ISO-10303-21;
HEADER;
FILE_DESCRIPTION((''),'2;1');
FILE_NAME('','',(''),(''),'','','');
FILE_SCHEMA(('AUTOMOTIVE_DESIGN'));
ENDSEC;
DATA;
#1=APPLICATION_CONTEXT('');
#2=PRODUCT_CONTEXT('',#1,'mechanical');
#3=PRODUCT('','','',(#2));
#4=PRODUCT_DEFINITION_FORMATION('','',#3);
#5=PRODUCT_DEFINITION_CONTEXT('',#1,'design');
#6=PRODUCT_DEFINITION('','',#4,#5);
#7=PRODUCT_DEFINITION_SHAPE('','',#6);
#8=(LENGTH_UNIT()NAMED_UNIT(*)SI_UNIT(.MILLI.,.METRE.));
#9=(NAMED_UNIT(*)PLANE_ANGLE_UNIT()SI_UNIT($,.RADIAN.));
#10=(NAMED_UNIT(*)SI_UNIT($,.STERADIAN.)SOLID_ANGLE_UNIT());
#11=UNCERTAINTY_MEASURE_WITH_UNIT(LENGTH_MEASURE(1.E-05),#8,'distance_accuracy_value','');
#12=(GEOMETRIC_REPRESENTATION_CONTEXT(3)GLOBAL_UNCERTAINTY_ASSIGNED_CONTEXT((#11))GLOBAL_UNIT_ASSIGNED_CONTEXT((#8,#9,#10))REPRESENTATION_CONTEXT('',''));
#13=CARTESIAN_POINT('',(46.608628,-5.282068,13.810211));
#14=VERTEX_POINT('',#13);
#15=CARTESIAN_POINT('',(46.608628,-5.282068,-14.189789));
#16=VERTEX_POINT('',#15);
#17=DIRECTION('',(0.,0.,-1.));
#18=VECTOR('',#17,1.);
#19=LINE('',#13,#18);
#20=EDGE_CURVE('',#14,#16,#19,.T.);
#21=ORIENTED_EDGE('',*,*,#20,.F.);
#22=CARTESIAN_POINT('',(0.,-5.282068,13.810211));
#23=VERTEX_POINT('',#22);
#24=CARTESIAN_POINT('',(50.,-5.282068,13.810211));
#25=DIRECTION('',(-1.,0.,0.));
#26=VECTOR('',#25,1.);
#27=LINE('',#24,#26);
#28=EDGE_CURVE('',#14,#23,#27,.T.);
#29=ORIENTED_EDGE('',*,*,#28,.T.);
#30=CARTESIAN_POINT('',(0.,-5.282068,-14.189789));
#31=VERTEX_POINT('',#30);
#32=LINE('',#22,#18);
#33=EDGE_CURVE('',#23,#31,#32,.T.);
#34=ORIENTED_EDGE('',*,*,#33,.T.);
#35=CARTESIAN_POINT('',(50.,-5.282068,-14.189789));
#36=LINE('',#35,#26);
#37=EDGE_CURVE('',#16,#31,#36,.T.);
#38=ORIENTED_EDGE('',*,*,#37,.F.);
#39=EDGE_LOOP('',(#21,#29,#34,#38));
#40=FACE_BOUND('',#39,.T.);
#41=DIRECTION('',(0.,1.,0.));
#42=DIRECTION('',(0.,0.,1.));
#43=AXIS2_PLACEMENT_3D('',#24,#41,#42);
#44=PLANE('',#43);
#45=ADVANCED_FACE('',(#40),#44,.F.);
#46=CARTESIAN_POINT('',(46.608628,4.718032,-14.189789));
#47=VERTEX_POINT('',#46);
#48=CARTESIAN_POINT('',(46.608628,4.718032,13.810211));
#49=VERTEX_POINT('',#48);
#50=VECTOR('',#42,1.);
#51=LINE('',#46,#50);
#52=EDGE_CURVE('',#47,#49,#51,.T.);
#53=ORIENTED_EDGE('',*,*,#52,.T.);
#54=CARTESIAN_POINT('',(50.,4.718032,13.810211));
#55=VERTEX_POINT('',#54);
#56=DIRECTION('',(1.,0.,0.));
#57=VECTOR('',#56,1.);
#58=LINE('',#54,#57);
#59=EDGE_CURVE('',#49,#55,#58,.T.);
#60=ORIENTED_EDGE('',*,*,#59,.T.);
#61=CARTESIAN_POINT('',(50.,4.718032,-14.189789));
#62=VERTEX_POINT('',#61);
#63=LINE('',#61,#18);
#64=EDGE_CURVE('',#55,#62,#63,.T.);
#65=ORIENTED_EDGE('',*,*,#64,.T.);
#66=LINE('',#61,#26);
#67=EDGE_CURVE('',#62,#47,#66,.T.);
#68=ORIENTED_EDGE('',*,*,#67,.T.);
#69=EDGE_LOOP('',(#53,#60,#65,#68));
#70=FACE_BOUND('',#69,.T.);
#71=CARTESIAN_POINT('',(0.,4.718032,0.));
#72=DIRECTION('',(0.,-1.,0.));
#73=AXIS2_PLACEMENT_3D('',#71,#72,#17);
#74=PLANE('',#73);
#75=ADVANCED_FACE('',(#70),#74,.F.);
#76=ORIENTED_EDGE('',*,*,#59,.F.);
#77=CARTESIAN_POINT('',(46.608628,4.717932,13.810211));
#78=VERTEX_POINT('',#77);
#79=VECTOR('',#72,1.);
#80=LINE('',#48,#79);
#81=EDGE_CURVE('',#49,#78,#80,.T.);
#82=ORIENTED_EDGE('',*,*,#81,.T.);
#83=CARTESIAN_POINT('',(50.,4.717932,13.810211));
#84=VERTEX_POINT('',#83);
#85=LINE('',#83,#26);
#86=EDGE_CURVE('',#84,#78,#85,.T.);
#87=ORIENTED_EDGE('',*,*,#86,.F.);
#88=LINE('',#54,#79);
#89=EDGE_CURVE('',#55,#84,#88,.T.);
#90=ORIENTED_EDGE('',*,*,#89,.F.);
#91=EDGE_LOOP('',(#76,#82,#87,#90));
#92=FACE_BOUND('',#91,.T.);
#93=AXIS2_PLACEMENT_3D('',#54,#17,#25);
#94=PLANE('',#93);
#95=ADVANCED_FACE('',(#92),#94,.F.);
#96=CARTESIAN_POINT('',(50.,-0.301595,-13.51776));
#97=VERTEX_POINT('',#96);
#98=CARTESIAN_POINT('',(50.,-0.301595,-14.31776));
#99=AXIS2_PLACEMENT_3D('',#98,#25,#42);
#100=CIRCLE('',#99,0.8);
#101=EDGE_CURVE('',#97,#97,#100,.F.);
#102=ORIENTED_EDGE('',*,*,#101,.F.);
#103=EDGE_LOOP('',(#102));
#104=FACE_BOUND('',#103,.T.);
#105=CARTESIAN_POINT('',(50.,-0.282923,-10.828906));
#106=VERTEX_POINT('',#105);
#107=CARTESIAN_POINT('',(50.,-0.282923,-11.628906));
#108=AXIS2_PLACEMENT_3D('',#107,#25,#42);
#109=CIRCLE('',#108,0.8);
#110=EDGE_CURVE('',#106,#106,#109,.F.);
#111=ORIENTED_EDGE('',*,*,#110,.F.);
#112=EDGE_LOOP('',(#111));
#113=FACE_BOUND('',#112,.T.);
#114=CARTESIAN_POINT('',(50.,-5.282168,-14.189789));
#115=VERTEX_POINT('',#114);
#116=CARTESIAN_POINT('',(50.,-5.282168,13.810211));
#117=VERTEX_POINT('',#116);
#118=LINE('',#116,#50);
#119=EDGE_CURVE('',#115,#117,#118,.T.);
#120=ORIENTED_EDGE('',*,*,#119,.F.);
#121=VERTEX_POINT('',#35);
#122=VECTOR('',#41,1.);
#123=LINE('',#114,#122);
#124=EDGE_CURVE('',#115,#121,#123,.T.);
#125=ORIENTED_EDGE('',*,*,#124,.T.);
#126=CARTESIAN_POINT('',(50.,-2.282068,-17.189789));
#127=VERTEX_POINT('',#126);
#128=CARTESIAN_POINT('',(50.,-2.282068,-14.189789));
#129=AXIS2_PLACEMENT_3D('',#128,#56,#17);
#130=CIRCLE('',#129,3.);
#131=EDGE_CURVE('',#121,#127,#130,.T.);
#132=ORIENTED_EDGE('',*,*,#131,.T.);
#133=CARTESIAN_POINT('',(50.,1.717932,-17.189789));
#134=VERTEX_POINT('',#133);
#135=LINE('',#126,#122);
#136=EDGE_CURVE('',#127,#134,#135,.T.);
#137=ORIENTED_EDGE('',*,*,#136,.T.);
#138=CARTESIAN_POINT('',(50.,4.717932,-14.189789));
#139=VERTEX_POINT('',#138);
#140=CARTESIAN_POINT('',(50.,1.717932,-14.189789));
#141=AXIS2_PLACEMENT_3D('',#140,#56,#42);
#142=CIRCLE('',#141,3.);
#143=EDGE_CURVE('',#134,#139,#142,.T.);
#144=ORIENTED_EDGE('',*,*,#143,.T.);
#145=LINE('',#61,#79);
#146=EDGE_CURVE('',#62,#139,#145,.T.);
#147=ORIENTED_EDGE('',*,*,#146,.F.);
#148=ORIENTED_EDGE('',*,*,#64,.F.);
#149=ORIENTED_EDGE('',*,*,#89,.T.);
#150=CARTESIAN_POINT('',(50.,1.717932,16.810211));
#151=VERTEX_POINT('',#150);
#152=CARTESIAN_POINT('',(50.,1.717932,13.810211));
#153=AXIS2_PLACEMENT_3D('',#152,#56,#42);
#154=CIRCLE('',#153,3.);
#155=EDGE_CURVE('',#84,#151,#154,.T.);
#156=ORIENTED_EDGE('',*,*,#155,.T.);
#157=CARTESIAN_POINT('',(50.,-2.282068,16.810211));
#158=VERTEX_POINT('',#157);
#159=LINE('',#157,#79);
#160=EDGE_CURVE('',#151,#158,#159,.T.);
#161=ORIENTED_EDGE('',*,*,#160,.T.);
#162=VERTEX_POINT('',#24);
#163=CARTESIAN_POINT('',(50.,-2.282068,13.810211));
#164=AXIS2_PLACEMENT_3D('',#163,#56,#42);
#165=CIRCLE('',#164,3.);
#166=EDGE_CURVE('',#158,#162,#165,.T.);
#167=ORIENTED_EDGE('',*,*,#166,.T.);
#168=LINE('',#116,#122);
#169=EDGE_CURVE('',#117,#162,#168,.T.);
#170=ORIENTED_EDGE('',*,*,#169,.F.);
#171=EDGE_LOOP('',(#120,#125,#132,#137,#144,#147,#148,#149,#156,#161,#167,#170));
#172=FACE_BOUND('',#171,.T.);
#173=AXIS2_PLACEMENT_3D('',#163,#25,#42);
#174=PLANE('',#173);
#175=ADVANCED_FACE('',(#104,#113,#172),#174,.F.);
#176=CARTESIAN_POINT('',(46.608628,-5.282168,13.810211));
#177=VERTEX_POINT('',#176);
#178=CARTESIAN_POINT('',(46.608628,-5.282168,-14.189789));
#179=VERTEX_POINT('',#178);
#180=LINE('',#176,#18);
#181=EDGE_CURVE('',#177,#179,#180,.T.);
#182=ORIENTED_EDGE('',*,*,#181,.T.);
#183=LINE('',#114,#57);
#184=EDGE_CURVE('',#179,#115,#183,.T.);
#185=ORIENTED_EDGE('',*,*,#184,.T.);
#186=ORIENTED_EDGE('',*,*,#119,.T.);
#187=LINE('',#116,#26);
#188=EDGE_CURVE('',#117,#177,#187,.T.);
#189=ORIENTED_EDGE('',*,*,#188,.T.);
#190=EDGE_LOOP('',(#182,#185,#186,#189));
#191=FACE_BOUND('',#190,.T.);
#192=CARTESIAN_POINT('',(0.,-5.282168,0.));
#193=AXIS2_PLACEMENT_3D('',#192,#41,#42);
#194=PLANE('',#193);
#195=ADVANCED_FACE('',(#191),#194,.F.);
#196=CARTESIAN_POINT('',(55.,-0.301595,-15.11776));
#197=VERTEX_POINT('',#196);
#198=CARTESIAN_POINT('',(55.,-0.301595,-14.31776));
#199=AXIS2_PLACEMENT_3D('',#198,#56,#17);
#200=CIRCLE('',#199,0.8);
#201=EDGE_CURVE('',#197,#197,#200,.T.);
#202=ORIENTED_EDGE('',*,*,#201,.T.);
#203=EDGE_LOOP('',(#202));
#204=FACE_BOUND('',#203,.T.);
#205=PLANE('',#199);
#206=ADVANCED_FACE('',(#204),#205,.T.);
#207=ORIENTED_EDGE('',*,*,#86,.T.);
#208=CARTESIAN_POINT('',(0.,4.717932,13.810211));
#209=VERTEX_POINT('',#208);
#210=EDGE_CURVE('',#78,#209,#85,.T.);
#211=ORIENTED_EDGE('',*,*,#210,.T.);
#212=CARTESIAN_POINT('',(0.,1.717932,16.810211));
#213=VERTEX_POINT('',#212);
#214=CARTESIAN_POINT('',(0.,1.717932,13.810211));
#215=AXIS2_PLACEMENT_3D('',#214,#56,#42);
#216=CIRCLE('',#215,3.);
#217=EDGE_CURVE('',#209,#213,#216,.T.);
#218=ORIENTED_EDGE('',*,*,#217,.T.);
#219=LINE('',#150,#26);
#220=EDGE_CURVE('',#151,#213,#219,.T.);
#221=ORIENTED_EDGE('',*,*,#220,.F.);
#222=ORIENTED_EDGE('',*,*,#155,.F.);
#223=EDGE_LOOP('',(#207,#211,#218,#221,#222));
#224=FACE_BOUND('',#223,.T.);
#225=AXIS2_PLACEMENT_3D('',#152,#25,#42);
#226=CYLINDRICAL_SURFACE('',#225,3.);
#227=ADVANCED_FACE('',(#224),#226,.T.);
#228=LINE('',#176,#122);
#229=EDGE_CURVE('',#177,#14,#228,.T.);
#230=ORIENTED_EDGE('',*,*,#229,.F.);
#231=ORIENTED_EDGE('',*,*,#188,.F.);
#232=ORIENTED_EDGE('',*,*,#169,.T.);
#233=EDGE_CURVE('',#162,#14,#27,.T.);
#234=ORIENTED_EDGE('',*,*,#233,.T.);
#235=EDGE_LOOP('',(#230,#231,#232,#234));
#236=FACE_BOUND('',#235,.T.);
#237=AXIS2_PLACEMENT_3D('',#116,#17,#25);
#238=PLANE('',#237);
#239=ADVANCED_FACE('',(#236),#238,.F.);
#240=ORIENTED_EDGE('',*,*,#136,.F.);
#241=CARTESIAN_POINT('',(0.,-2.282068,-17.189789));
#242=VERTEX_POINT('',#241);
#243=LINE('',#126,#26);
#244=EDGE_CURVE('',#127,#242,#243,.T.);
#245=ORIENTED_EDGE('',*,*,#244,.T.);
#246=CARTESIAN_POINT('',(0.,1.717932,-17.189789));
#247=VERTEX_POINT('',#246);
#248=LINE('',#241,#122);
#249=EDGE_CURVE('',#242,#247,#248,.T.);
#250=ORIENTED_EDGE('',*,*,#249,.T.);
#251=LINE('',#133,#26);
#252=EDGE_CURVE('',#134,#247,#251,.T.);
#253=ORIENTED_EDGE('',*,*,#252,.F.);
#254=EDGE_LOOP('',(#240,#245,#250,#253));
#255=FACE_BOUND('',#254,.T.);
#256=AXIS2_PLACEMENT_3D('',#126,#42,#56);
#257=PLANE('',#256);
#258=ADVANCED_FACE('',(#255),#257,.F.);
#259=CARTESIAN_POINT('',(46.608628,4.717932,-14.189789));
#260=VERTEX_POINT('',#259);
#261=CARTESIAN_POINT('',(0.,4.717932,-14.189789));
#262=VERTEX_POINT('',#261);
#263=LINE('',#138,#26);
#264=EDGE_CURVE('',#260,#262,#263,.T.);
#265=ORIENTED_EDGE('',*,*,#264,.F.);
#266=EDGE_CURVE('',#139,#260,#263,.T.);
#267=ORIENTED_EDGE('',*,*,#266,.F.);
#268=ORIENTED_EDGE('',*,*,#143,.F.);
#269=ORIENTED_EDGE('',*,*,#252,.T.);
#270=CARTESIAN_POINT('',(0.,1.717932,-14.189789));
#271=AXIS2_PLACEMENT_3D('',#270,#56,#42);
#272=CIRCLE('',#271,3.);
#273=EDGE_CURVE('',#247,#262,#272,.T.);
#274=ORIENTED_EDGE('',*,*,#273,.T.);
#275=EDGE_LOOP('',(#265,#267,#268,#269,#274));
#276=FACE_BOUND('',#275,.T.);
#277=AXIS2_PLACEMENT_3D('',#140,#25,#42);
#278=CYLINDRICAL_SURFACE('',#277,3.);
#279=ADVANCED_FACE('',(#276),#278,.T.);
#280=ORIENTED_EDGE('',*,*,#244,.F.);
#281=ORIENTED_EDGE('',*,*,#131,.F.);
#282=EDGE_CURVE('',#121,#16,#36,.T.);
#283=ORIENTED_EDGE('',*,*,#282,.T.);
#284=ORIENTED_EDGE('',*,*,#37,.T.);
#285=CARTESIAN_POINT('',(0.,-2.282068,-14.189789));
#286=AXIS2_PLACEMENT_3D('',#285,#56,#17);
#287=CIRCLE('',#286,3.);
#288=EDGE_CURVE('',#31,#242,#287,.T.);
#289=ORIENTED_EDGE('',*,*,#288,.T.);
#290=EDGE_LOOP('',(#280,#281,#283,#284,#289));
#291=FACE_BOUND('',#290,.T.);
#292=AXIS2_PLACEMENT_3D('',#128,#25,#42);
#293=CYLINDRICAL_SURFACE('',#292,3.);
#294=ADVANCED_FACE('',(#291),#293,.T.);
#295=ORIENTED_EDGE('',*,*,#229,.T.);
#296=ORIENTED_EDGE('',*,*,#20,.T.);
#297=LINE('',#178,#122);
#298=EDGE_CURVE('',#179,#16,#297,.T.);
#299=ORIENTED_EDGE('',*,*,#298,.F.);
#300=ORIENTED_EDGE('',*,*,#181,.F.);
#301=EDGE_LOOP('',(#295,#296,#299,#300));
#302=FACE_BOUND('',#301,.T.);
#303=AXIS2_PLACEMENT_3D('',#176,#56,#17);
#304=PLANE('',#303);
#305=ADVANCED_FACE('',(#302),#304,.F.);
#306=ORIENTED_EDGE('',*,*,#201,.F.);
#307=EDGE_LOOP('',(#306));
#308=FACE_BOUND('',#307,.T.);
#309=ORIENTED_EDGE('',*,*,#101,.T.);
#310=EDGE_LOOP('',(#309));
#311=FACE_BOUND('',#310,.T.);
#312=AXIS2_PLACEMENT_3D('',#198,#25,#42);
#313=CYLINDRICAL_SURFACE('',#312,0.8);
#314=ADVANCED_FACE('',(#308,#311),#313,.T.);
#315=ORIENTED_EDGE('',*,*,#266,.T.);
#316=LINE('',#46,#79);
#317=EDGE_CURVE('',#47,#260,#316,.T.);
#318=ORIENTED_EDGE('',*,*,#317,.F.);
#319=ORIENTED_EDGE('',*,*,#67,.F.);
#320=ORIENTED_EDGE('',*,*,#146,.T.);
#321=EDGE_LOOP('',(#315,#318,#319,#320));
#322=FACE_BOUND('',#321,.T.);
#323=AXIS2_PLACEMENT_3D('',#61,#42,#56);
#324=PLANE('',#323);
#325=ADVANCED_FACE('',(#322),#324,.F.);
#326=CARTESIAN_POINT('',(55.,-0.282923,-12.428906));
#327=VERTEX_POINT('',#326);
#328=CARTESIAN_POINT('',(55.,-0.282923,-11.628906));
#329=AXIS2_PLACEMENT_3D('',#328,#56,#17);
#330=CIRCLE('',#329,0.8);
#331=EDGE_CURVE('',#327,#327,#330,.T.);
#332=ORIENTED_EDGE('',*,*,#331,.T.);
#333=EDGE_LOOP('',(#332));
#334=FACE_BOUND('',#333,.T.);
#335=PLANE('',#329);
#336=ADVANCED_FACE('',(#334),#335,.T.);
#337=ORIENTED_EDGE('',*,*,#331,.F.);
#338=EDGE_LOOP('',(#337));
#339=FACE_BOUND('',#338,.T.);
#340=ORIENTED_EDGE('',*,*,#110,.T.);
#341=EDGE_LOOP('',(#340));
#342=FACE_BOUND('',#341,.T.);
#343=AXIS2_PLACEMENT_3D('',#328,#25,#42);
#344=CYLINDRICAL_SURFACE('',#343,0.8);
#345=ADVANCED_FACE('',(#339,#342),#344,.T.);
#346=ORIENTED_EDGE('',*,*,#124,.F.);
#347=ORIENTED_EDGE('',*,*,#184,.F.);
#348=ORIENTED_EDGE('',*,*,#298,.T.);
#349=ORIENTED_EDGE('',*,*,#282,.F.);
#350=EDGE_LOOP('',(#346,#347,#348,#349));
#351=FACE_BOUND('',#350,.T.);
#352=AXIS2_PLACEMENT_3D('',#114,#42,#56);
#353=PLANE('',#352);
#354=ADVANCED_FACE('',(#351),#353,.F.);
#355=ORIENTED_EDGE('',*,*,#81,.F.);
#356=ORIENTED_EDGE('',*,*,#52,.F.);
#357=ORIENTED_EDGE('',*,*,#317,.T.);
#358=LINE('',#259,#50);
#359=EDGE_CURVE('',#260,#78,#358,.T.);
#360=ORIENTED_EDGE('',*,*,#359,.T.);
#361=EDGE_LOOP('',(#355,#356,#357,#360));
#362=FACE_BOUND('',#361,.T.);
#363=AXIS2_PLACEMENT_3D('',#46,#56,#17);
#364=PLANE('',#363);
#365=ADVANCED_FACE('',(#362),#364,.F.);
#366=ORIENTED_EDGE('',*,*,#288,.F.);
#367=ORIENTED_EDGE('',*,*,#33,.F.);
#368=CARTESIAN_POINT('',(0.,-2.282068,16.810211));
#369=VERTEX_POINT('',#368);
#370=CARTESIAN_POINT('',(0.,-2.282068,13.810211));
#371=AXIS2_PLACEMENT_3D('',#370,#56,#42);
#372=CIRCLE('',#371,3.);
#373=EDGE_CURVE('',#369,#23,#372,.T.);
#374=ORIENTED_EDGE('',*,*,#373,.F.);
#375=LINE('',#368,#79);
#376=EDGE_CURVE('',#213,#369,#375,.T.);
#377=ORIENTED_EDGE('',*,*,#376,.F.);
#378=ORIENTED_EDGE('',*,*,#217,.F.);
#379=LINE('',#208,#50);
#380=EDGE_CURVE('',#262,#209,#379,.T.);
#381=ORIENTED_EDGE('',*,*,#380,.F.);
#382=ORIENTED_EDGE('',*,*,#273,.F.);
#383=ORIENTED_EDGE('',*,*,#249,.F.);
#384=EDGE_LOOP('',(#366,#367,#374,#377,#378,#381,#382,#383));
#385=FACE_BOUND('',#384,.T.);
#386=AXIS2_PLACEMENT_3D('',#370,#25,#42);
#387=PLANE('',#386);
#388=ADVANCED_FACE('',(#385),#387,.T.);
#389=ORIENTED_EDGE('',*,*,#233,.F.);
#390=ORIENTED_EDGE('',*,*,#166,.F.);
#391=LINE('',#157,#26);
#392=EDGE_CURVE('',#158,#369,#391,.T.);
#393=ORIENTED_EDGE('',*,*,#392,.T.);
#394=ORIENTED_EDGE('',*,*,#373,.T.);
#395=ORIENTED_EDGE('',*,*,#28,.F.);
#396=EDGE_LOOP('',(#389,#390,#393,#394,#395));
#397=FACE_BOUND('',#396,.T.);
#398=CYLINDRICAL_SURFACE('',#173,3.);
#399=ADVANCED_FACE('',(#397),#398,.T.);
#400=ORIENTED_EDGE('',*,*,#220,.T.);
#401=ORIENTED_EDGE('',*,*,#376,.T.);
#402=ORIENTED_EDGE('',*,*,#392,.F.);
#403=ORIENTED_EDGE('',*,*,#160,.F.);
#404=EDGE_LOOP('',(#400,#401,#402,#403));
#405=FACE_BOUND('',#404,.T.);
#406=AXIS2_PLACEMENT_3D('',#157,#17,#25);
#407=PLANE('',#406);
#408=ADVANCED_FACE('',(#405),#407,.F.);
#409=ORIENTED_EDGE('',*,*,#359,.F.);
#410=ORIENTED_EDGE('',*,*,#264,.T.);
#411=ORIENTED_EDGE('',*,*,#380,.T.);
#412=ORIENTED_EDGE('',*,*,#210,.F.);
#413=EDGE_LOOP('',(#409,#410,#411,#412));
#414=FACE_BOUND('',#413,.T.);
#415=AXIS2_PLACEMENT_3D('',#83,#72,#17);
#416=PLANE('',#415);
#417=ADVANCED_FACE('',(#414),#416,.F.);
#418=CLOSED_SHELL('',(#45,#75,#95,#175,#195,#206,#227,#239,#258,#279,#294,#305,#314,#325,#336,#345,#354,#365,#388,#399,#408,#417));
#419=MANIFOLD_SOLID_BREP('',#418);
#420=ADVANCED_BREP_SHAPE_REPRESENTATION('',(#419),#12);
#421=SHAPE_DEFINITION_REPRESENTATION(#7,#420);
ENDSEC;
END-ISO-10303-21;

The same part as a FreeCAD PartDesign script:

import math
import FreeCAD as App
import Part
import Sketcher
from FreeCAD import Vector


def add_polygon(sketch, points):
    """Adds a closed chain of lines whose ends are joined by coincident constraints."""
    first, n = sketch.GeometryCount, len(points)
    for a, b in zip(points, points[1:] + points[:1]):
        sketch.addGeometry(Part.LineSegment(App.Vector(*a, 0), App.Vector(*b, 0)), False)
    for i in range(n):
        sketch.addConstraint(Sketcher.Constraint("Coincident", first + i, 2, first + (i + 1) % n, 1))

doc = App.newDocument("Part")
body = doc.addObject("PartDesign::Body", "Body")

sketch1 = body.newObject("Sketcher::SketchObject", "Sketch")
sketch1.AttachmentSupport = (doc.getObject("YZ_Plane"), [""])
sketch1.MapMode = "FlatFace"
sketch1.addGeometry(Part.LineSegment(Vector(-5.3, 13.8, 0), Vector(-5.3, -14.2, 0)), False)
sketch1.addGeometry(Part.ArcOfCircle(Part.Circle(Vector(-2.3, -14.2, 0), Vector(0, 0, 1), 3), math.radians(180), math.radians(270)), False)
sketch1.addGeometry(Part.LineSegment(Vector(-2.3, -17.2, 0), Vector(1.7, -17.2, 0)), False)
sketch1.addGeometry(Part.ArcOfCircle(Part.Circle(Vector(1.7, -14.2, 0), Vector(0, 0, 1), 3), math.radians(-90), math.radians(0)), False)
sketch1.addGeometry(Part.LineSegment(Vector(4.7, -14.2, 0), Vector(4.7, 13.8, 0)), False)
sketch1.addGeometry(Part.ArcOfCircle(Part.Circle(Vector(1.7, 13.8, 0), Vector(0, 0, 1), 3), math.radians(0), math.radians(90)), False)
sketch1.addGeometry(Part.LineSegment(Vector(1.7, 16.8, 0), Vector(-2.3, 16.8, 0)), False)
sketch1.addGeometry(Part.ArcOfCircle(Part.Circle(Vector(-2.3, 13.8, 0), Vector(0, 0, 1), 3), math.radians(90), math.radians(180)), False)
sketch1.addConstraint(Sketcher.Constraint("Tangent", 0, 2, 1, 1))
sketch1.addConstraint(Sketcher.Constraint("Tangent", 1, 2, 2, 1))
sketch1.addConstraint(Sketcher.Constraint("Tangent", 2, 2, 3, 1))
sketch1.addConstraint(Sketcher.Constraint("Tangent", 3, 2, 4, 1))
sketch1.addConstraint(Sketcher.Constraint("Tangent", 4, 2, 5, 1))
sketch1.addConstraint(Sketcher.Constraint("Tangent", 5, 2, 6, 1))
sketch1.addConstraint(Sketcher.Constraint("Tangent", 6, 2, 7, 1))
sketch1.addConstraint(Sketcher.Constraint("Tangent", 7, 2, 0, 1))
sketch1.addConstraint(Sketcher.Constraint("Vertical", 0))
sketch1.addConstraint(Sketcher.Constraint("Horizontal", 2))
sketch1.addConstraint(Sketcher.Constraint("Vertical", 4))
sketch1.addConstraint(Sketcher.Constraint("Horizontal", 6))
sketch1.addConstraint(Sketcher.Constraint("Equal", 1, 3))
sketch1.addConstraint(Sketcher.Constraint("Equal", 3, 5))
sketch1.addConstraint(Sketcher.Constraint("Equal", 5, 7))
sketch1.addConstraint(Sketcher.Constraint("Radius", 1, 3.0))
sketch1.addConstraint(Sketcher.Constraint("DistanceX", 2, 1, 2, 2, 4.0))
sketch1.addConstraint(Sketcher.Constraint("DistanceY", 0, 2, 0, 1, 28.0))
sketch1.addConstraint(Sketcher.Constraint("DistanceY", 1, 3, -1, 1, 14.189789))
sketch1.addConstraint(Sketcher.Constraint("DistanceX", 1, 3, -1, 1, 2.282068))
pad1 = body.newObject("PartDesign::Pad", "Pad")
pad1.Profile = sketch1
pad1.Length = 50

sketch2 = body.newObject("Sketcher::SketchObject", "Sketch001")
sketch2.AttachmentSupport = (doc.getObject("YZ_Plane"), [""])
sketch2.MapMode = "FlatFace"
sketch2.AttachmentOffset = App.Placement(Vector(0, 0, 50), App.Rotation())
sketch2.addGeometry(Part.Circle(Vector(-0.3, -11.6, 0), Vector(0, 0, 1), 0.8), False)
sketch2.addConstraint(Sketcher.Constraint("Diameter", 0, 1.6))
sketch2.addConstraint(Sketcher.Constraint("DistanceX", 0, 3, -1, 1, 0.282923))
sketch2.addConstraint(Sketcher.Constraint("DistanceY", 0, 3, -1, 1, 11.628906))
pad2 = body.newObject("PartDesign::Pad", "Pad001")
pad2.Profile = sketch2
pad2.Length = 5

sketch3 = body.newObject("Sketcher::SketchObject", "Sketch002")
sketch3.AttachmentSupport = (doc.getObject("YZ_Plane"), [""])
sketch3.MapMode = "FlatFace"
sketch3.AttachmentOffset = App.Placement(Vector(0, 0, 50), App.Rotation())
sketch3.addGeometry(Part.Circle(Vector(-0.3, -14.3, 0), Vector(0, 0, 1), 0.8), False)
sketch3.addConstraint(Sketcher.Constraint("Diameter", 0, 1.6))
sketch3.addConstraint(Sketcher.Constraint("DistanceY", 0, 3, -1, 1, 14.31776))
sketch3.addConstraint(Sketcher.Constraint("DistanceX", 0, 3, -1, 1, 0.301595))
pad3 = body.newObject("PartDesign::Pad", "Pad002")
pad3.Profile = sketch3
pad3.Length = 5

sketch4 = body.newObject("Sketcher::SketchObject", "Sketch003")
sketch4.AttachmentSupport = (doc.getObject("XZ_Plane"), [""])
sketch4.MapMode = "FlatFace"
sketch4.AttachmentOffset = App.Placement(Vector(0, 0, -4.717932), App.Rotation())
add_polygon(sketch4, [(46.6, -14.2), (46.6, 13.8), (50, 13.8), (50, -14.2)])
sketch4.addConstraint(Sketcher.Constraint("Vertical", 0))
sketch4.addConstraint(Sketcher.Constraint("Horizontal", 1))
sketch4.addConstraint(Sketcher.Constraint("Vertical", 2))
sketch4.addConstraint(Sketcher.Constraint("Horizontal", 3))
sketch4.addConstraint(Sketcher.Constraint("DistanceY", 0, 1, 0, 2, 28.0))
sketch4.addConstraint(Sketcher.Constraint("DistanceX", -1, 1, 1, 2, 50.0))
sketch4.addConstraint(Sketcher.Constraint("DistanceX", 1, 1, 1, 2, 3.391372))
sketch4.addConstraint(Sketcher.Constraint("DistanceY", -1, 1, 0, 2, 13.810211))
pad4 = body.newObject("PartDesign::Pad", "Pad003")
pad4.Profile = sketch4
pad4.Length = 0.0001
pad4.Reversed = True

sketch5 = body.newObject("Sketcher::SketchObject", "Sketch004")
sketch5.AttachmentSupport = (doc.getObject("XZ_Plane"), [""])
sketch5.MapMode = "FlatFace"
sketch5.AttachmentOffset = App.Placement(Vector(0, 0, 5.282068), App.Rotation())
add_polygon(sketch5, [(50, -14.2), (50, 13.8), (46.6, 13.8), (46.6, -14.2)])
sketch5.addConstraint(Sketcher.Constraint("Vertical", 0))
sketch5.addConstraint(Sketcher.Constraint("Horizontal", 1))
sketch5.addConstraint(Sketcher.Constraint("Vertical", 2))
sketch5.addConstraint(Sketcher.Constraint("Horizontal", 3))
sketch5.addConstraint(Sketcher.Constraint("DistanceY", 0, 1, 0, 2, 28.0))
sketch5.addConstraint(Sketcher.Constraint("DistanceX", -1, 1, 0, 2, 50.0))
sketch5.addConstraint(Sketcher.Constraint("DistanceX", 1, 2, 1, 1, 3.391372))
sketch5.addConstraint(Sketcher.Constraint("DistanceY", -1, 1, 0, 2, 13.810211))
pad5 = body.newObject("PartDesign::Pad", "Pad004")
pad5.Profile = sketch5
pad5.Length = 0.0001

doc.recompute()
